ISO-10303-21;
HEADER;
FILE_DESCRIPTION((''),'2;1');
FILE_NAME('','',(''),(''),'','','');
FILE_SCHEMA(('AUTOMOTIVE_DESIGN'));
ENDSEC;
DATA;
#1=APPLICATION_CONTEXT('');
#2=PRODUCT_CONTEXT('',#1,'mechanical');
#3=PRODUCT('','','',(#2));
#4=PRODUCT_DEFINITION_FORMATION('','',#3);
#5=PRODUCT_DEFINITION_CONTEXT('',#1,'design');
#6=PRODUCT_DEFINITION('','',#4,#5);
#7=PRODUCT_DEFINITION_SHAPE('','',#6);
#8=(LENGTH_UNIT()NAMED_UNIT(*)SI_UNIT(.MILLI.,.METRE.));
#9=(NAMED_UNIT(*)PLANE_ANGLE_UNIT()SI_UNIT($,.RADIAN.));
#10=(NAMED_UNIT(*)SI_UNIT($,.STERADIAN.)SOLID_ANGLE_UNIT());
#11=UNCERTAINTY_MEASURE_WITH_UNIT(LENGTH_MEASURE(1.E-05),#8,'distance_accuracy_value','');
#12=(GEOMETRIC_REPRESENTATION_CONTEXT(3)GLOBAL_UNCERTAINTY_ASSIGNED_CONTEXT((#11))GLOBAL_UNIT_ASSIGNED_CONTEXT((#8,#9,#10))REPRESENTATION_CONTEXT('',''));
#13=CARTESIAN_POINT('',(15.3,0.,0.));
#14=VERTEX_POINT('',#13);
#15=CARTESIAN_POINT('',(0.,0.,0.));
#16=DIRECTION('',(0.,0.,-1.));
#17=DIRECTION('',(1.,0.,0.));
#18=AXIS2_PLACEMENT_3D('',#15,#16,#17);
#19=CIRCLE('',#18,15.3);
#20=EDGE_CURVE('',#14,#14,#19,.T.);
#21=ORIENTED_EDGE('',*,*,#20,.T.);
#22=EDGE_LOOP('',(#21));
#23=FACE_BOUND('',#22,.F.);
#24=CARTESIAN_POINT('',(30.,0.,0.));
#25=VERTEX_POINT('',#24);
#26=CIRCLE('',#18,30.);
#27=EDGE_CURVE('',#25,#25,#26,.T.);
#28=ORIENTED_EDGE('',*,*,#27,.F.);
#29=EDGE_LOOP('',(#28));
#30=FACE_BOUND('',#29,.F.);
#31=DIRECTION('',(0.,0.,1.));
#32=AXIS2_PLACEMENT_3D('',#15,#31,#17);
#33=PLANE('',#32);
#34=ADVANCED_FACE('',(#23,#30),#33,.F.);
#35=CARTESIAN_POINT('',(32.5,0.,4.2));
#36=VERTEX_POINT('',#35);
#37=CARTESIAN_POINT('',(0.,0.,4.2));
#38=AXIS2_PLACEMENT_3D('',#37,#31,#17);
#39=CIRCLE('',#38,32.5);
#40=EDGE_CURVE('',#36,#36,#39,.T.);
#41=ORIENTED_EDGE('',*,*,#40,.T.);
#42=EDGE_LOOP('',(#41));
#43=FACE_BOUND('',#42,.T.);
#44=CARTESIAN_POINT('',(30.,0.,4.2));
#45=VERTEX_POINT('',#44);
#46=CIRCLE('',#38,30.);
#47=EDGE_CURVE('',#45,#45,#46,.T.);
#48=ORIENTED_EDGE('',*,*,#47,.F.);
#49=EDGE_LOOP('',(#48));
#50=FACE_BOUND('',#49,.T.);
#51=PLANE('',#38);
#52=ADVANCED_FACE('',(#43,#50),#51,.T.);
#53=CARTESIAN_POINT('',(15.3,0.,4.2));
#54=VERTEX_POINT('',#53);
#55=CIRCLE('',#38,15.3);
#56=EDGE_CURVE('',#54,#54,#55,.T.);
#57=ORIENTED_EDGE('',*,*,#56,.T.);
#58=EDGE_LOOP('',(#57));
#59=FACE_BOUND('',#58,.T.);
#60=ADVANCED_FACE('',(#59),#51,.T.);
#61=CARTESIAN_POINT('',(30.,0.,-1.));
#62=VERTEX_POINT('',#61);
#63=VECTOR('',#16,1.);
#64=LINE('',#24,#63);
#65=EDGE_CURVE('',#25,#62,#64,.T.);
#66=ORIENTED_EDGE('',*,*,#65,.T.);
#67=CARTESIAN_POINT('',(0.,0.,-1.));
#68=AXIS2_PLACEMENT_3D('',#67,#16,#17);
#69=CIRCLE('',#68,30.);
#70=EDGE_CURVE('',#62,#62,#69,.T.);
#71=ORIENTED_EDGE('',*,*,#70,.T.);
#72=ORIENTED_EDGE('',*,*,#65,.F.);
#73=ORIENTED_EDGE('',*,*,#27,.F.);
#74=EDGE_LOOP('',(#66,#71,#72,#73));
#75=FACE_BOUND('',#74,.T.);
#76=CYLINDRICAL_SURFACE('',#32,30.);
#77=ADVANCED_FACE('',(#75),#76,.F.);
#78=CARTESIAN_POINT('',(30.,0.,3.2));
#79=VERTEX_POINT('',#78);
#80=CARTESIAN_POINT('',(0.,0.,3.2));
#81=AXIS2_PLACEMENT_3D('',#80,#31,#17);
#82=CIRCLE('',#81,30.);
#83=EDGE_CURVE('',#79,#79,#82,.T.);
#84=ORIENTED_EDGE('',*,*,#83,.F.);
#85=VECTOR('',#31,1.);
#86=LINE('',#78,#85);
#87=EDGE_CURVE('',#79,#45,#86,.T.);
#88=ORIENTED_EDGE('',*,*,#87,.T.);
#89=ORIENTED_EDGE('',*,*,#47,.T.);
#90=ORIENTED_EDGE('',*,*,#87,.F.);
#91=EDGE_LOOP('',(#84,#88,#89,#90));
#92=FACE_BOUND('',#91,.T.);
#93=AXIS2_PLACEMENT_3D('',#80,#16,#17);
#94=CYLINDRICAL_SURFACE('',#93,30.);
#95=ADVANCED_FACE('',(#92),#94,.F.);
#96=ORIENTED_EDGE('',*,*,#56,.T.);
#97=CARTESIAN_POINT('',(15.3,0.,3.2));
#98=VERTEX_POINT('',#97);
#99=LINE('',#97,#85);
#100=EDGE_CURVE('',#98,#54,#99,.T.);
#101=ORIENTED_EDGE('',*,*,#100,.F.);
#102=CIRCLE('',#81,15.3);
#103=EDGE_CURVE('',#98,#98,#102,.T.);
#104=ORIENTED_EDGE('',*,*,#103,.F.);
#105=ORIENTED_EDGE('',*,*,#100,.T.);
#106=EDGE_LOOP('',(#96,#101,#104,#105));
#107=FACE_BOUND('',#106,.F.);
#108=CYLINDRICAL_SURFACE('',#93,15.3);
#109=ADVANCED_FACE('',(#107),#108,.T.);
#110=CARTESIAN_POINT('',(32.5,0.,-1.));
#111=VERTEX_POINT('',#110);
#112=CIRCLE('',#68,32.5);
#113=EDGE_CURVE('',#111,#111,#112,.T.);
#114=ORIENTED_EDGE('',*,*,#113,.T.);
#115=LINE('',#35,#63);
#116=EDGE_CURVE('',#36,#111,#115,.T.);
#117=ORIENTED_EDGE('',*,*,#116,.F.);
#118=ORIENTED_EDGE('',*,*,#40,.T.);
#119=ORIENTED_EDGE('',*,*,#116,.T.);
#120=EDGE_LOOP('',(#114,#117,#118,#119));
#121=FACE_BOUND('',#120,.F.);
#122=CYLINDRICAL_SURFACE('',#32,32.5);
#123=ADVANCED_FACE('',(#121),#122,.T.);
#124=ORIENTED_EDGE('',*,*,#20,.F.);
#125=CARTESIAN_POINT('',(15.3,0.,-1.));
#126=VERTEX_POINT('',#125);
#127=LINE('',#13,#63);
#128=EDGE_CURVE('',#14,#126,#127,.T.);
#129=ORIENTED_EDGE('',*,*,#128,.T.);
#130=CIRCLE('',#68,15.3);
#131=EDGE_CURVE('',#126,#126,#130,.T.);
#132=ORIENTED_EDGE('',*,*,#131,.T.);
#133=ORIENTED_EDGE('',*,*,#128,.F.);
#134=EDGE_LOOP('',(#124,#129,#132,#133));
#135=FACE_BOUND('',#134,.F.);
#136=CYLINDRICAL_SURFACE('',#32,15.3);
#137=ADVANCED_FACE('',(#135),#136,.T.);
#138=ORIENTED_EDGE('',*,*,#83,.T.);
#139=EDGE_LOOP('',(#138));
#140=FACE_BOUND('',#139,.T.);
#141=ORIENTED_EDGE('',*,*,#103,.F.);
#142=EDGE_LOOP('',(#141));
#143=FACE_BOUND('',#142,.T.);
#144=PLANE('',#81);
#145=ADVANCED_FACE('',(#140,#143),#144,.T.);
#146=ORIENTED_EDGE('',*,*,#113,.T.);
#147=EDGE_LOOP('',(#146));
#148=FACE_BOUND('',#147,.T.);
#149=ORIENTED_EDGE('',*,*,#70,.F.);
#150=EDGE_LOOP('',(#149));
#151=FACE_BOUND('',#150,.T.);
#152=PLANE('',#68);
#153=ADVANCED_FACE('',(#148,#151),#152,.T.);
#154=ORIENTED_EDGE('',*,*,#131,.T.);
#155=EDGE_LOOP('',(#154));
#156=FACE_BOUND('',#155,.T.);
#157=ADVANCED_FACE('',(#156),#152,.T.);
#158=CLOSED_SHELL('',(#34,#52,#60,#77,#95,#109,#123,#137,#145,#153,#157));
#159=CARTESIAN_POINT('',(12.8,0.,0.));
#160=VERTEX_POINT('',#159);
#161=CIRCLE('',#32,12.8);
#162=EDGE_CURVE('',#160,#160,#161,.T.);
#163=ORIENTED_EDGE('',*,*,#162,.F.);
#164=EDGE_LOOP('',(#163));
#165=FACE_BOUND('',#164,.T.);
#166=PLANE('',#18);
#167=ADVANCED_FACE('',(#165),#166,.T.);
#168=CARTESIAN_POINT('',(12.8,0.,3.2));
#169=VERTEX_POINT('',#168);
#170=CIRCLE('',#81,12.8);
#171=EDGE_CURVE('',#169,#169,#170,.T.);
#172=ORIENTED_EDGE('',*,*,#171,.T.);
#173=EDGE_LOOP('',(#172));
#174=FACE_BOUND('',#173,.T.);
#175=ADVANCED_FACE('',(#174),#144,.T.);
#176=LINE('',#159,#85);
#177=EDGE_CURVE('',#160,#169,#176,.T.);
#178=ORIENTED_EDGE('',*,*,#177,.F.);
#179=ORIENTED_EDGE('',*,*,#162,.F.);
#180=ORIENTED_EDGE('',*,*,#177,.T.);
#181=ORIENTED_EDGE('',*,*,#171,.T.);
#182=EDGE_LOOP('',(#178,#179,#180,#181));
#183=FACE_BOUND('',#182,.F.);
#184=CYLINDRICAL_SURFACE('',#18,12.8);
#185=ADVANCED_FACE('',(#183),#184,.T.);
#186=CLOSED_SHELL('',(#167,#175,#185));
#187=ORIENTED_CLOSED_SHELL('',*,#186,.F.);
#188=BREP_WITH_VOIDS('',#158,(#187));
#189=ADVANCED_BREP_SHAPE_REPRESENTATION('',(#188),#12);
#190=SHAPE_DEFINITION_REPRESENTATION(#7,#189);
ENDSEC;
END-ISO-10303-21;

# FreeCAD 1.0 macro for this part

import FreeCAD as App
import Part
import Sketcher

V = App.Vector

doc = App.newDocument("Part")
params = doc.addObject("Spreadsheet::Sheet", "Params")
for row, (alias, value) in enumerate([
    ("sketch1_diameter", "65 mm"),
    ("sketch1_diameter2", "25.6 mm"),
    ("pad1_length", "3.2 mm"),
    ("sketch2_diameter", "65 mm"),
    ("sketch2_diameter2", "60 mm"),
    ("sketch2_diameter3", "30.6 mm"),
    ("pad2_length", "1 mm"),
    ("sketch3_diameter", "65 mm"),
    ("sketch3_diameter2", "60 mm"),
    ("sketch3_diameter3", "30.6 mm"),
    ("pad3_length", "1 mm"),
], start=1):
    params.set(f"A{row}", alias)
    params.set(f"B{row}", "=" + value)
    params.setAlias(f"B{row}", alias)

body = doc.addObject("PartDesign::Body", "Body")

# Sketch on XY plane
sketch1 = doc.addObject("Sketcher::SketchObject", "Sketch")
body.addObject(sketch1)
sketch1.AttachmentSupport = (doc.XY_Plane, [""])
sketch1.MapMode = "FlatFace"
sketch1.addGeometry([
    Part.Circle(V(0, 0, 0), V(0, 0, 1), 32),
    Part.Circle(V(0, 0, 0), V(0, 0, 1), 13),
], False)
sketch1.addConstraint([
    Sketcher.Constraint("Coincident", 0, 3, -1, 1),
    Sketcher.Constraint("Coincident", 1, 3, -1, 1),
    Sketcher.Constraint("Diameter", 0, 65.0),
    Sketcher.Constraint("Diameter", 1, 25.6),
])
sketch1.setExpression("Constraints[2]", "Params.sketch1_diameter")
sketch1.setExpression("Constraints[3]", "Params.sketch1_diameter2")
pad1 = doc.addObject("PartDesign::Pad", "Pad")
body.addObject(pad1)
pad1.Profile = sketch1
pad1.setExpression("Length", "Params.pad1_length")

# Sketch on XY plane
sketch2 = doc.addObject("Sketcher::SketchObject", "Sketch001")
body.addObject(sketch2)
sketch2.AttachmentSupport = (doc.XY_Plane, [""])
sketch2.MapMode = "FlatFace"
sketch2.AttachmentOffset = App.Placement(V(0, 0, 3.2), App.Rotation())
sketch2.addGeometry([
    Part.Circle(V(0, 0, 0), V(0, 0, 1), 32),
    Part.Circle(V(0, 0, 0), V(0, 0, 1), 30),
    Part.Circle(V(0, 0, 0), V(0, 0, 1), 15),
], False)
sketch2.addConstraint([
    Sketcher.Constraint("Coincident", 0, 3, -1, 1),
    Sketcher.Constraint("Coincident", 1, 3, -1, 1),
    Sketcher.Constraint("Coincident", 2, 3, -1, 1),
    Sketcher.Constraint("Diameter", 0, 65.0),
    Sketcher.Constraint("Diameter", 1, 60.0),
    Sketcher.Constraint("Diameter", 2, 30.6),
])
sketch2.setExpression("Constraints[3]", "Params.sketch2_diameter")
sketch2.setExpression("Constraints[4]", "Params.sketch2_diameter2")
sketch2.setExpression("Constraints[5]", "Params.sketch2_diameter3")
pad2 = doc.addObject("PartDesign::Pad", "Pad001")
body.addObject(pad2)
pad2.Profile = sketch2
pad2.setExpression("Length", "Params.pad2_length")

# Sketch on XY plane
sketch3 = doc.addObject("Sketcher::SketchObject", "Sketch002")
body.addObject(sketch3)
sketch3.AttachmentSupport = (doc.XY_Plane, [""])
sketch3.MapMode = "FlatFace"
sketch3.addGeometry([
    Part.Circle(V(0, 0, 0), V(0, 0, 1), 32),
    Part.Circle(V(0, 0, 0), V(0, 0, 1), 30),
    Part.Circle(V(0, 0, 0), V(0, 0, 1), 15),
], False)
sketch3.addConstraint([
    Sketcher.Constraint("Coincident", 0, 3, -1, 1),
    Sketcher.Constraint("Coincident", 1, 3, -1, 1),
    Sketcher.Constraint("Coincident", 2, 3, -1, 1),
    Sketcher.Constraint("Diameter", 0, 65.0),
    Sketcher.Constraint("Diameter", 1, 60.0),
    Sketcher.Constraint("Diameter", 2, 30.6),
])
sketch3.setExpression("Constraints[3]", "Params.sketch3_diameter")
sketch3.setExpression("Constraints[4]", "Params.sketch3_diameter2")
sketch3.setExpression("Constraints[5]", "Params.sketch3_diameter3")
pad3 = doc.addObject("PartDesign::Pad", "Pad002")
body.addObject(pad3)
pad3.Profile = sketch3
pad3.setExpression("Length", "Params.pad3_length")
pad3.Reversed = True

doc.recompute()
